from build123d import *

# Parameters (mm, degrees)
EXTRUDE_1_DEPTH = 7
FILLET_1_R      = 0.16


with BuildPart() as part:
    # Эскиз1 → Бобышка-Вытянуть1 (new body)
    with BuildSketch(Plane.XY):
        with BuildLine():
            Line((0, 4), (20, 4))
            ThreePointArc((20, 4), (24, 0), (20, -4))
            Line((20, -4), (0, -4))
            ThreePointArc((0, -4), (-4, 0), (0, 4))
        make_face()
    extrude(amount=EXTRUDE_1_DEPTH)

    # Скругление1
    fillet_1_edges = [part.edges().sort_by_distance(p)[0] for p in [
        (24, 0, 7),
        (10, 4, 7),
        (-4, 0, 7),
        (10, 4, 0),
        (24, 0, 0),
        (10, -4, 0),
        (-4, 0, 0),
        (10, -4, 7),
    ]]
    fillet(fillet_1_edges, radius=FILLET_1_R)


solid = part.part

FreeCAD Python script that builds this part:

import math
import FreeCAD as App
import Part
import Sketcher
from FreeCAD import Vector
Q = App.Units.Quantity


def edges_at(feature, points):
    """Names of the edges that pass closest to the given points."""
    edges = feature.Shape.Edges
    near = lambda p: min(range(len(edges)), key=lambda i: edges[i].distToShape(Part.Vertex(*p))[0])
    return sorted({f"Edge{near(p) + 1}" for p in points})

doc = App.newDocument("Part")
body = doc.addObject("PartDesign::Body", "Body")

sketch1 = body.newObject("Sketcher::SketchObject", "Sketch")
sketch1.AttachmentSupport = (doc.getObject("XY_Plane"), [""])
sketch1.MapMode = "FlatFace"
sketch1.addGeometry([
    Part.LineSegment(Vector(20, 4, 0), Vector(0, 4, 0)),
    Part.ArcOfCircle(Part.Circle(Vector(0, 0, 0), Vector(0, 0, 1), 4), math.radians(90), math.radians(270)),
    Part.LineSegment(Vector(0, -4, 0), Vector(20, -4, 0)),
    Part.ArcOfCircle(Part.Circle(Vector(20, 0, 0), Vector(0, 0, 1), 4), math.radians(-90), math.radians(90)),
], False)
sketch1.addConstraint([
    Sketcher.Constraint("Tangent", 0, 2, 1, 1),
    Sketcher.Constraint("Tangent", 1, 2, 2, 1),
    Sketcher.Constraint("Tangent", 2, 2, 3, 1),
    Sketcher.Constraint("Tangent", 3, 2, 0, 1),
    Sketcher.Constraint("Horizontal", 0),
    Sketcher.Constraint("Horizontal", 2),
    Sketcher.Constraint("Coincident", 1, 3, -1, 1),
    Sketcher.Constraint("Radius", 1, Q("4 mm")),
    Sketcher.Constraint("DistanceX", 0, 2, 0, 1, Q("20 mm")),
])
pad1 = body.newObject("PartDesign::Pad", "Pad")
pad1.Profile = sketch1
pad1.Length = 7
doc.recompute()

fillet = body.newObject("PartDesign::Fillet", "Fillet")
fillet.Base = (pad1, edges_at(pad1, [
    (24, 0, 7),
    (10, 4, 7),
    (-4, 0, 7),
    (10, 4, 0),
    (24, 0, 0),
    (10, -4, 0),
    (-4, 0, 0),
    (10, -4, 7),
]))
fillet.Radius = 0.16

doc.recompute()
